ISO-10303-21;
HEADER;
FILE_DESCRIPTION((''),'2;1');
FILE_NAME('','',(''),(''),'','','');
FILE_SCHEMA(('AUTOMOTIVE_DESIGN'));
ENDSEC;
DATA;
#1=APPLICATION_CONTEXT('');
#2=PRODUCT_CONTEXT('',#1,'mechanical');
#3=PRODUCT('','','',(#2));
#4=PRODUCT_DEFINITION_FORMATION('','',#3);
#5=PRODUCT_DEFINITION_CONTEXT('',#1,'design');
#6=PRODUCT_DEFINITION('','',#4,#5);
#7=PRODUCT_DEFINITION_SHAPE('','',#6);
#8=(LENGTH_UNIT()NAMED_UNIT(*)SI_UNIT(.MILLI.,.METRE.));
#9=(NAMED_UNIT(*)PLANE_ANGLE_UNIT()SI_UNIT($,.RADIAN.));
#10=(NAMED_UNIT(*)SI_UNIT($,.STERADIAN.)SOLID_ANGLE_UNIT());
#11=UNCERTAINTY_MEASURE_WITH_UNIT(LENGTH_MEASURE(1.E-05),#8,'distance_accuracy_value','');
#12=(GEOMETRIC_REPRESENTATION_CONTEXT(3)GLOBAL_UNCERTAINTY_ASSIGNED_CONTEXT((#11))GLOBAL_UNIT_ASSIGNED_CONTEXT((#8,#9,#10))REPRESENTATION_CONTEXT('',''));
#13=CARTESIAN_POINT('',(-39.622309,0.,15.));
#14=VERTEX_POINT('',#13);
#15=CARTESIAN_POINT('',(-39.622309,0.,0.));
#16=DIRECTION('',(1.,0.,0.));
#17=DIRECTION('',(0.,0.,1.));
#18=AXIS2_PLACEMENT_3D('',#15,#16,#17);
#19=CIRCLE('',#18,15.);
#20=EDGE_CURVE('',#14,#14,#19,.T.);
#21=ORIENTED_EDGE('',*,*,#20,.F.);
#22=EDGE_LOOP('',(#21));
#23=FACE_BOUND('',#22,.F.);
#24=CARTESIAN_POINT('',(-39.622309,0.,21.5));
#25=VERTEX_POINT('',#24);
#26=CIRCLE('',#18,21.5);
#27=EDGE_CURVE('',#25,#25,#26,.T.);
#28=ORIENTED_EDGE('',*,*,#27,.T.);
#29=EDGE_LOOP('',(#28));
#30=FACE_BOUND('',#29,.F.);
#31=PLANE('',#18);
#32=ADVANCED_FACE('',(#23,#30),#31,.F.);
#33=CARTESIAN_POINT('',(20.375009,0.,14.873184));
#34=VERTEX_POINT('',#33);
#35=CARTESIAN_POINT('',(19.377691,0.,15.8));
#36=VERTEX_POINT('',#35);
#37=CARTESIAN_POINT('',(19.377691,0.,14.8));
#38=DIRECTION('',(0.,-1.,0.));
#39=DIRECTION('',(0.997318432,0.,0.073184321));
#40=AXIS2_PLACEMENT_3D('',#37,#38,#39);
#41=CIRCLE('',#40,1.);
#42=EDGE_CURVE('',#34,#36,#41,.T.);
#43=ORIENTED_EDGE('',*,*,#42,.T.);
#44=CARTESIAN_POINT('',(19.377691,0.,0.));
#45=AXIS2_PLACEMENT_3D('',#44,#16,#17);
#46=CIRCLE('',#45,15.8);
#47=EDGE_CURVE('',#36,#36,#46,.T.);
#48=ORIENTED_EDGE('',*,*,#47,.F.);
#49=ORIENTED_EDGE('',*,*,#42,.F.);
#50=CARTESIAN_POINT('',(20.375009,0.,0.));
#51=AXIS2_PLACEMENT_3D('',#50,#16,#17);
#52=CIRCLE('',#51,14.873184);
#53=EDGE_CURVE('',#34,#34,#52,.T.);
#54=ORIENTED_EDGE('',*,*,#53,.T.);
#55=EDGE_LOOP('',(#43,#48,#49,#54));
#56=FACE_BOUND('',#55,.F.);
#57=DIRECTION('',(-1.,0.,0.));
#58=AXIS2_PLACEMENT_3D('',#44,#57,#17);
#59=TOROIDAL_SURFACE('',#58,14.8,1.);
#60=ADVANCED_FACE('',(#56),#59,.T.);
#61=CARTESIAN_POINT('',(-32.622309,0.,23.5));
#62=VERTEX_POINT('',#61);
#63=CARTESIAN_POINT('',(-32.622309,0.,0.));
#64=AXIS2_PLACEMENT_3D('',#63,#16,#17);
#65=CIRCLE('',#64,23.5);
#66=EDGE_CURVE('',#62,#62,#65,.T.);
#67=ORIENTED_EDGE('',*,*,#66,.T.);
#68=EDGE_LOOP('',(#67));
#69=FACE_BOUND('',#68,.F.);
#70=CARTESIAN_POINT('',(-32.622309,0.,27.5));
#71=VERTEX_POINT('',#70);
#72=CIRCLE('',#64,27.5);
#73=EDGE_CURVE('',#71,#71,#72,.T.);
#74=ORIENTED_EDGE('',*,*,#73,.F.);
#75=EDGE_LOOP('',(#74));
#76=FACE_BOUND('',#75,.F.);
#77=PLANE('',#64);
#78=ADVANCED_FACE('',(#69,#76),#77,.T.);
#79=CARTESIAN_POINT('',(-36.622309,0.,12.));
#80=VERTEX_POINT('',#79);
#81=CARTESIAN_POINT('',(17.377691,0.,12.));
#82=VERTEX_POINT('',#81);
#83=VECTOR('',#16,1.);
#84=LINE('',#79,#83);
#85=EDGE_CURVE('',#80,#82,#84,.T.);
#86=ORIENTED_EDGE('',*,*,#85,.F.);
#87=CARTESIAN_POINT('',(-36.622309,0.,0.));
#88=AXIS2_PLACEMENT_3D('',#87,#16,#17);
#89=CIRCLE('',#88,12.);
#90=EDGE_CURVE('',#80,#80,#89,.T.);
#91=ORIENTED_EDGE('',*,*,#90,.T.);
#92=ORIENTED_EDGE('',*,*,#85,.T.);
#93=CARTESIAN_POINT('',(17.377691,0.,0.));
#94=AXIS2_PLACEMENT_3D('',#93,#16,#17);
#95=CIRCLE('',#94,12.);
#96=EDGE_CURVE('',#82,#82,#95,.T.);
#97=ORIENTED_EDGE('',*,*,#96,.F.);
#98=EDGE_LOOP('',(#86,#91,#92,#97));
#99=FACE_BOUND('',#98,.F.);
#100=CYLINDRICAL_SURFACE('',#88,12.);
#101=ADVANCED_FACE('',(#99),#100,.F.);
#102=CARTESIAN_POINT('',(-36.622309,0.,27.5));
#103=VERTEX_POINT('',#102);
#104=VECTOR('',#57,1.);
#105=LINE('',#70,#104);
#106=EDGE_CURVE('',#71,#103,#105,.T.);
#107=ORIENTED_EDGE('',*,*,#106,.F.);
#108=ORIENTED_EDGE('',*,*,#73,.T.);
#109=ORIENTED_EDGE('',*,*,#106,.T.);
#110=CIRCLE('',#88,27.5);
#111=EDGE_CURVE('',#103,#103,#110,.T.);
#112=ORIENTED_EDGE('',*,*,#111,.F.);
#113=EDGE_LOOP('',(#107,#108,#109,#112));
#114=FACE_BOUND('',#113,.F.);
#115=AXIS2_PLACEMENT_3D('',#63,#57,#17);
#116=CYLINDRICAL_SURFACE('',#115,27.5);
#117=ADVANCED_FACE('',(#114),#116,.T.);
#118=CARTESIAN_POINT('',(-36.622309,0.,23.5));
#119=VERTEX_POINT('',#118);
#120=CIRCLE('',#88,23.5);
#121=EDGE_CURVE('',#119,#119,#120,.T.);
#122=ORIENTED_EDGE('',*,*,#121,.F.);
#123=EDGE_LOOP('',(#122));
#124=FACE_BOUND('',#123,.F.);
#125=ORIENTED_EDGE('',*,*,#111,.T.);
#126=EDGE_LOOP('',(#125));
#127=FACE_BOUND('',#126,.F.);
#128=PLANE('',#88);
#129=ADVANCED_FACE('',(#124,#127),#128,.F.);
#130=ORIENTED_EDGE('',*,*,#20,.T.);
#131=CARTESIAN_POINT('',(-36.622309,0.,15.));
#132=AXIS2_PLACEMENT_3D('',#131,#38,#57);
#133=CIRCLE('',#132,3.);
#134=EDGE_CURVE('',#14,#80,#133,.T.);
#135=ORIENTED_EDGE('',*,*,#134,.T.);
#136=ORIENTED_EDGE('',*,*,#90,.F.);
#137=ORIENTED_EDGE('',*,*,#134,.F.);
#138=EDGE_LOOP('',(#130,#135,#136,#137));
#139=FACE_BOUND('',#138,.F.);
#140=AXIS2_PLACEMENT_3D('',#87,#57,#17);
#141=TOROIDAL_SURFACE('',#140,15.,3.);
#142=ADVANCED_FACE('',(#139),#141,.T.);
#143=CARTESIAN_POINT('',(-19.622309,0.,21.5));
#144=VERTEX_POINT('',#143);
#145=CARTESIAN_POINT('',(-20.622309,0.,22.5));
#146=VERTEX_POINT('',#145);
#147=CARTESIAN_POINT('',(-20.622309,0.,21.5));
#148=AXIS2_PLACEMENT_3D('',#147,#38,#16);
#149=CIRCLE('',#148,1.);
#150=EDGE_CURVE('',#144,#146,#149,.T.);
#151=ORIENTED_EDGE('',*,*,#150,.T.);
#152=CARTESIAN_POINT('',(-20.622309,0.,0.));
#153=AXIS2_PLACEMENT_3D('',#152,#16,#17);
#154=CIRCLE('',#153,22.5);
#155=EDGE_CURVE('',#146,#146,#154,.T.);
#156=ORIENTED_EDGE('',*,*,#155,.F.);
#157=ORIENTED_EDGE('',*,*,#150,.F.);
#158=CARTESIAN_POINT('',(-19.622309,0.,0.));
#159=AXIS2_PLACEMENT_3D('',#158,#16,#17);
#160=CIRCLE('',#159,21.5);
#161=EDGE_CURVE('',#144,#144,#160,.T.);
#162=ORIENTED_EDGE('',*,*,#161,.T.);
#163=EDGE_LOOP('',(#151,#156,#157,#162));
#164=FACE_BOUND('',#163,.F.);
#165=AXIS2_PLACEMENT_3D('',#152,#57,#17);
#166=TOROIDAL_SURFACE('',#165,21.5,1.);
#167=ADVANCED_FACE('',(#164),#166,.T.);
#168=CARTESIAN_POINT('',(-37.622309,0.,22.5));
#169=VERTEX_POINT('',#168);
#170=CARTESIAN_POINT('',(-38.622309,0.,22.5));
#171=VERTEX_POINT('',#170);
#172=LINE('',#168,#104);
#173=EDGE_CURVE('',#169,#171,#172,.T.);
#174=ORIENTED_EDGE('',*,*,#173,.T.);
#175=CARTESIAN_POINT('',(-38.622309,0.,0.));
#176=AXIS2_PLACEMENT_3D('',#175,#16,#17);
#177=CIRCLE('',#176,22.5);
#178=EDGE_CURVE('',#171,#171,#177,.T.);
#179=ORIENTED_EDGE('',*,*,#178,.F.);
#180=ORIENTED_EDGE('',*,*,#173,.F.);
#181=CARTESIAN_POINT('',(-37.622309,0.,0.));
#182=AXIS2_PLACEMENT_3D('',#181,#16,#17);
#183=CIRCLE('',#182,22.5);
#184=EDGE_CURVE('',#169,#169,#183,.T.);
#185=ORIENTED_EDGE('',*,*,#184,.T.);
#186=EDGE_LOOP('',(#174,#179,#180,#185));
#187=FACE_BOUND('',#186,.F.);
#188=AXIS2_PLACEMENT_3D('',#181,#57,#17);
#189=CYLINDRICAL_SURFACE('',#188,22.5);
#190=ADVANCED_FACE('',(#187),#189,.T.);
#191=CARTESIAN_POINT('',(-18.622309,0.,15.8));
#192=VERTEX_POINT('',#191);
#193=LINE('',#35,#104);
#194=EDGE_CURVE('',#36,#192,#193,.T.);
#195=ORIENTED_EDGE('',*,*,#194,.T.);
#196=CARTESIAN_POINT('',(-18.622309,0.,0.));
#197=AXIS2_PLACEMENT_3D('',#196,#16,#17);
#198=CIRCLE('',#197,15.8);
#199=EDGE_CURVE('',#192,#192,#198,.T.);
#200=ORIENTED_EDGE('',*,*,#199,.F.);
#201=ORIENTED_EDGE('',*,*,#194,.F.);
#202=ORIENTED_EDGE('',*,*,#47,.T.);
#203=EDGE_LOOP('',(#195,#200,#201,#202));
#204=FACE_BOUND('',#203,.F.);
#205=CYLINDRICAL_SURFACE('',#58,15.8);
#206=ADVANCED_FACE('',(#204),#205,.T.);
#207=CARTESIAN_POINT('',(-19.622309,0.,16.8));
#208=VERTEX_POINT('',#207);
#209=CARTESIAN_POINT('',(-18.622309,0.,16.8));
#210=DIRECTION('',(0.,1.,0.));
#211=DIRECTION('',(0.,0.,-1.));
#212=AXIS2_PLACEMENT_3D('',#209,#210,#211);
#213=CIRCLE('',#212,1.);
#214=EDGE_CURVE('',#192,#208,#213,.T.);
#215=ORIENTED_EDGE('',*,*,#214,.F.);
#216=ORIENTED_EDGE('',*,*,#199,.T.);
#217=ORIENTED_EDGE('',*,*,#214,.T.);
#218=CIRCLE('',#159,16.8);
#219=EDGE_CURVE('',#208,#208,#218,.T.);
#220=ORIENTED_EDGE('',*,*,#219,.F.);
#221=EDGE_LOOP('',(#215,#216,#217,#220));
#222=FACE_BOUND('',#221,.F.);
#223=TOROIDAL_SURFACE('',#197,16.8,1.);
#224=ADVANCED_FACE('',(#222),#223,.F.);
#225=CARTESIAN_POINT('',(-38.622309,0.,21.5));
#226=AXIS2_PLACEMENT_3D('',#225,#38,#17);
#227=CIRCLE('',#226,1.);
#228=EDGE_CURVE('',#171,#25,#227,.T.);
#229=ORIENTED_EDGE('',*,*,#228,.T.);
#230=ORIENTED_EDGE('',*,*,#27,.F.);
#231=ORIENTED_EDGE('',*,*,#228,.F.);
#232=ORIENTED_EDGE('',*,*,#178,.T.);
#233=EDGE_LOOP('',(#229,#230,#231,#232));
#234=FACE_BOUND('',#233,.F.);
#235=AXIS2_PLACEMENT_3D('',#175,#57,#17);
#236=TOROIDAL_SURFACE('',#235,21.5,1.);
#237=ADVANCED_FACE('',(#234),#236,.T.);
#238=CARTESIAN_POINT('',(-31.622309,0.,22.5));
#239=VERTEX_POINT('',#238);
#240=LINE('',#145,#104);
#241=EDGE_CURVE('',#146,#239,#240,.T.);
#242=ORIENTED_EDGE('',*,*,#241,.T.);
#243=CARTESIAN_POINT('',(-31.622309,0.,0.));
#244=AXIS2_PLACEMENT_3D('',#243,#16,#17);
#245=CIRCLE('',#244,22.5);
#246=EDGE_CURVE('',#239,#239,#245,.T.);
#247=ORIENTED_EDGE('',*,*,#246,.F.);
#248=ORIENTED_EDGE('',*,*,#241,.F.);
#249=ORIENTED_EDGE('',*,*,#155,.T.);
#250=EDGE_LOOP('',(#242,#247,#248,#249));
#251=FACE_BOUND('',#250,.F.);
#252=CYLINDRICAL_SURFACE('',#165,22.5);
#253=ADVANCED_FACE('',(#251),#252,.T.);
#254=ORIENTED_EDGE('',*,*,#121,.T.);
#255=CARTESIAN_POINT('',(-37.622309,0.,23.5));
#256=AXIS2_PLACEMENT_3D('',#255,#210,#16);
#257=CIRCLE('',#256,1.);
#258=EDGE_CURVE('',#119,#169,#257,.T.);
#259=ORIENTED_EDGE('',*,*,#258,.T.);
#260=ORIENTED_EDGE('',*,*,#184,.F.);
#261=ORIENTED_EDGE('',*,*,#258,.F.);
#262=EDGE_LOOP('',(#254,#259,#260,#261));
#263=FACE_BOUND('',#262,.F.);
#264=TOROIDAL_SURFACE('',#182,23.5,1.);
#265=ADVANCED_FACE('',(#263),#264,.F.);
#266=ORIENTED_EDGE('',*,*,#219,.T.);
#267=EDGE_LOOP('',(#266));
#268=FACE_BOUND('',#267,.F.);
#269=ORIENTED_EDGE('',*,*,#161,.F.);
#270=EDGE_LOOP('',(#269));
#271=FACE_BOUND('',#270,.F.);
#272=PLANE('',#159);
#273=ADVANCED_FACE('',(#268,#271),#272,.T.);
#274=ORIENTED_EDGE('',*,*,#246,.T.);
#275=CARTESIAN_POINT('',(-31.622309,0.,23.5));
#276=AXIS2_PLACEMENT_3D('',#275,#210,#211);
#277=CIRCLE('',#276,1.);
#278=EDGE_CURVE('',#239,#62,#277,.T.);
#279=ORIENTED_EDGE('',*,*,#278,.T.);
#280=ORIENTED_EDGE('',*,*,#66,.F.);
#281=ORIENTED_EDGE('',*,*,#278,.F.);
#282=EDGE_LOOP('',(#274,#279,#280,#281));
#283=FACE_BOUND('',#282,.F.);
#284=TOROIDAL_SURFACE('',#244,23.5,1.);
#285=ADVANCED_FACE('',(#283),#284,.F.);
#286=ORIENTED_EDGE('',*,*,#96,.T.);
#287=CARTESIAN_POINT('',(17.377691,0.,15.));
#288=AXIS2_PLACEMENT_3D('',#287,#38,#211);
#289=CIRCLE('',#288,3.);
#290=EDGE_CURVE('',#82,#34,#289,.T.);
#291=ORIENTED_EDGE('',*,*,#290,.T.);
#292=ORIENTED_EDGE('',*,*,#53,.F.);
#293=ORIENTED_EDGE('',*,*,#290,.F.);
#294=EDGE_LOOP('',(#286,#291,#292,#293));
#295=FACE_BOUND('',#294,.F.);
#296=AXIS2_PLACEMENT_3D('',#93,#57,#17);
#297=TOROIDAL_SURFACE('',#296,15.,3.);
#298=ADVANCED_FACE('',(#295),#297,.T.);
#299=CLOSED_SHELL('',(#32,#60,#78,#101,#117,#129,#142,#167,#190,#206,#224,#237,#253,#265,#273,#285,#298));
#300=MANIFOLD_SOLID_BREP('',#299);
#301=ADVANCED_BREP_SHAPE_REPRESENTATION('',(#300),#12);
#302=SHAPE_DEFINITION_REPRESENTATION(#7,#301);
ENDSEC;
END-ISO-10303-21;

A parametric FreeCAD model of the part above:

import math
import FreeCAD as App
import Part
import Sketcher

doc = App.newDocument("Part")
body = doc.addObject("PartDesign::Body", "Body")

# Sketch on XZ plane
sketch1 = doc.addObject("Sketcher::SketchObject", "Sketch")
body.addObject(sketch1)
sketch1.AttachmentSupport = (doc.XZ_Plane, [""])
sketch1.MapMode = "FlatFace"
sketch1.addGeometry([
    Part.ArcOfCircle(Part.Circle(App.Vector(17.377691, 15, 0), App.Vector(0, 0, 1), 3), math.radians(-2.422723), math.radians(0)),
    Part.ArcOfCircle(Part.Circle(App.Vector(19.377691, 14.8, 0), App.Vector(0, 0, 1), 1), math.radians(0), math.radians(4.196905)),
    Part.LineSegment(App.Vector(20.377691, 14.8, 0), App.Vector(20.377691, 15, 0)),
], False)
sketch1.addConstraint([
    Sketcher.Constraint("Coincident", 0, 1, 1, 2),
    Sketcher.Constraint("Tangent", 1, 1, 2, 1),
    Sketcher.Constraint("Tangent", 2, 2, 0, 2),
    Sketcher.Constraint("Vertical", 2),
    Sketcher.Constraint("Radius", 0, 3.0),
    Sketcher.Constraint("Radius", 1, 1.0),
    Sketcher.Constraint("DistanceY", 2, 1, 2, 2, 0.2),
    Sketcher.Constraint("DistanceY", -1, 1, 0, 3, 15.0),
    Sketcher.Constraint("DistanceX", -1, 1, 0, 3, 17.377691),
])
revolution = doc.addObject("PartDesign::Revolution", "Revolution")
body.addObject(revolution)
revolution.Profile = sketch1
revolution.ReferenceAxis = (sketch1, ["H_Axis"])
revolution.Angle = 360
body2 = doc.addObject("PartDesign::Body", "Body001")

# Sketch on XZ plane
sketch2 = doc.addObject("Sketcher::SketchObject", "Sketch001")
body2.addObject(sketch2)
sketch2.AttachmentSupport = (doc.getObject("XZ_Plane001"), [""])
sketch2.MapMode = "FlatFace"
sketch2.addGeometry([
    Part.LineSegment(App.Vector(-39.622309, 21.5, 0), App.Vector(-39.622309, 15, 0)),  # 0
    Part.ArcOfCircle(Part.Circle(App.Vector(-36.622309, 15, 0), App.Vector(0, 0, 1), 3), math.radians(180), math.radians(270)),  # 1
    Part.LineSegment(App.Vector(-36.622309, 12, 0), App.Vector(17.377691, 12, 0)),  # 2
    Part.ArcOfCircle(Part.Circle(App.Vector(17.377691, 15, 0), App.Vector(0, 0, 1), 3), math.radians(-90), math.radians(-2.422723)),  # 3
    Part.ArcOfCircle(Part.Circle(App.Vector(19.377691, 14.8, 0), App.Vector(0, 0, 1), 1), math.radians(4.196905), math.radians(90)),  # 4
    Part.LineSegment(App.Vector(19.377691, 15.8, 0), App.Vector(-18.622309, 15.8, 0)),  # 5
    Part.ArcOfCircle(Part.Circle(App.Vector(-18.622309, 16.8, 0), App.Vector(0, 0, 1), 1), math.radians(180), math.radians(270)),  # 6
    Part.LineSegment(App.Vector(-19.622309, 16.8, 0), App.Vector(-19.622309, 21.5, 0)),  # 7
    Part.ArcOfCircle(Part.Circle(App.Vector(-20.622309, 21.5, 0), App.Vector(0, 0, 1), 1), math.radians(0), math.radians(90)),  # 8
    Part.LineSegment(App.Vector(-20.622309, 22.5, 0), App.Vector(-31.622309, 22.5, 0)),  # 9
    Part.ArcOfCircle(Part.Circle(App.Vector(-31.622309, 23.5, 0), App.Vector(0, 0, 1), 1), math.radians(180), math.radians(270)),  # 10
    Part.LineSegment(App.Vector(-32.622309, 23.5, 0), App.Vector(-32.622309, 27.5, 0)),  # 11
    Part.LineSegment(App.Vector(-32.622309, 27.5, 0), App.Vector(-36.622309, 27.5, 0)),  # 12
    Part.LineSegment(App.Vector(-36.622309, 27.5, 0), App.Vector(-36.622309, 23.5, 0)),  # 13
    Part.ArcOfCircle(Part.Circle(App.Vector(-37.622309, 23.5, 0), App.Vector(0, 0, 1), 1), math.radians(-90), math.radians(0)),  # 14
    Part.LineSegment(App.Vector(-37.622309, 22.5, 0), App.Vector(-38.622309, 22.5, 0)),  # 15
    Part.ArcOfCircle(Part.Circle(App.Vector(-38.622309, 21.5, 0), App.Vector(0, 0, 1), 1), math.radians(90), math.radians(180)),  # 16
], False)
sketch2.addConstraint([
    Sketcher.Constraint("Tangent", 0, 2, 1, 1),
    Sketcher.Constraint("Tangent", 1, 2, 2, 1),
    Sketcher.Constraint("Tangent", 2, 2, 3, 1),
    Sketcher.Constraint("Coincident", 3, 2, 4, 1),
    Sketcher.Constraint("Tangent", 4, 2, 5, 1),
    Sketcher.Constraint("Tangent", 5, 2, 6, 2),
    Sketcher.Constraint("Tangent", 6, 1, 7, 1),
    Sketcher.Constraint("Tangent", 7, 2, 8, 1),
    Sketcher.Constraint("Tangent", 8, 2, 9, 1),
    Sketcher.Constraint("Tangent", 9, 2, 10, 2),
    Sketcher.Constraint("Tangent", 10, 1, 11, 1),
    Sketcher.Constraint("Coincident", 11, 2, 12, 1),
    Sketcher.Constraint("Coincident", 12, 2, 13, 1),
    Sketcher.Constraint("Tangent", 13, 2, 14, 2),
    Sketcher.Constraint("Tangent", 14, 1, 15, 1),
    Sketcher.Constraint("Tangent", 15, 2, 16, 1),
    Sketcher.Constraint("Tangent", 16, 2, 0, 1),
    Sketcher.Constraint("Vertical", 0),
    Sketcher.Constraint("Horizontal", 2),
    Sketcher.Constraint("Horizontal", 5),
    Sketcher.Constraint("Vertical", 7),
    Sketcher.Constraint("Horizontal", 9),
    Sketcher.Constraint("Vertical", 11),
    Sketcher.Constraint("Horizontal", 12),
    Sketcher.Constraint("Vertical", 13),
    Sketcher.Constraint("Horizontal", 15),
    Sketcher.Constraint("Equal", 1, 3),
    Sketcher.Constraint("Equal", 4, 6),
    Sketcher.Constraint("Equal", 6, 8),
    Sketcher.Constraint("Equal", 8, 10),
    Sketcher.Constraint("Equal", 10, 14),
    Sketcher.Constraint("Equal", 14, 16),
    Sketcher.Constraint("Horizontal", 10, 3, 14, 3),
    Sketcher.Constraint("Vertical", 1, 2, 12, 2),
    Sketcher.Constraint("Equal", 12, 11),
    Sketcher.Constraint("Radius", 1, 3.0),
    Sketcher.Constraint("Radius", 4, 1.0),
    Sketcher.Constraint("DistanceX", 2, 1, 2, 2, 54.0),
    Sketcher.Constraint("DistanceX", 5, 2, 5, 1, 38.0),
    Sketcher.Constraint("DistanceX", 9, 2, 9, 1, 11.0),
    Sketcher.Constraint("DistanceX", 12, 2, 12, 1, 4.0),
    Sketcher.Constraint("DistanceY", 0, 2, 0, 1, 6.5),
    Sketcher.Constraint("DistanceY", 7, 1, 7, 2, 4.7),
    Sketcher.Constraint("DistanceY", -1, 1, 1, 3, 15.0),
    Sketcher.Constraint("DistanceX", 1, 3, -1, 1, 36.622309),
])
revolution2 = doc.addObject("PartDesign::Revolution", "Revolution001")
body2.addObject(revolution2)
revolution2.Profile = sketch2
revolution2.ReferenceAxis = (sketch2, ["H_Axis"])
revolution2.Angle = 360
body.Visibility = False

doc.recompute()
